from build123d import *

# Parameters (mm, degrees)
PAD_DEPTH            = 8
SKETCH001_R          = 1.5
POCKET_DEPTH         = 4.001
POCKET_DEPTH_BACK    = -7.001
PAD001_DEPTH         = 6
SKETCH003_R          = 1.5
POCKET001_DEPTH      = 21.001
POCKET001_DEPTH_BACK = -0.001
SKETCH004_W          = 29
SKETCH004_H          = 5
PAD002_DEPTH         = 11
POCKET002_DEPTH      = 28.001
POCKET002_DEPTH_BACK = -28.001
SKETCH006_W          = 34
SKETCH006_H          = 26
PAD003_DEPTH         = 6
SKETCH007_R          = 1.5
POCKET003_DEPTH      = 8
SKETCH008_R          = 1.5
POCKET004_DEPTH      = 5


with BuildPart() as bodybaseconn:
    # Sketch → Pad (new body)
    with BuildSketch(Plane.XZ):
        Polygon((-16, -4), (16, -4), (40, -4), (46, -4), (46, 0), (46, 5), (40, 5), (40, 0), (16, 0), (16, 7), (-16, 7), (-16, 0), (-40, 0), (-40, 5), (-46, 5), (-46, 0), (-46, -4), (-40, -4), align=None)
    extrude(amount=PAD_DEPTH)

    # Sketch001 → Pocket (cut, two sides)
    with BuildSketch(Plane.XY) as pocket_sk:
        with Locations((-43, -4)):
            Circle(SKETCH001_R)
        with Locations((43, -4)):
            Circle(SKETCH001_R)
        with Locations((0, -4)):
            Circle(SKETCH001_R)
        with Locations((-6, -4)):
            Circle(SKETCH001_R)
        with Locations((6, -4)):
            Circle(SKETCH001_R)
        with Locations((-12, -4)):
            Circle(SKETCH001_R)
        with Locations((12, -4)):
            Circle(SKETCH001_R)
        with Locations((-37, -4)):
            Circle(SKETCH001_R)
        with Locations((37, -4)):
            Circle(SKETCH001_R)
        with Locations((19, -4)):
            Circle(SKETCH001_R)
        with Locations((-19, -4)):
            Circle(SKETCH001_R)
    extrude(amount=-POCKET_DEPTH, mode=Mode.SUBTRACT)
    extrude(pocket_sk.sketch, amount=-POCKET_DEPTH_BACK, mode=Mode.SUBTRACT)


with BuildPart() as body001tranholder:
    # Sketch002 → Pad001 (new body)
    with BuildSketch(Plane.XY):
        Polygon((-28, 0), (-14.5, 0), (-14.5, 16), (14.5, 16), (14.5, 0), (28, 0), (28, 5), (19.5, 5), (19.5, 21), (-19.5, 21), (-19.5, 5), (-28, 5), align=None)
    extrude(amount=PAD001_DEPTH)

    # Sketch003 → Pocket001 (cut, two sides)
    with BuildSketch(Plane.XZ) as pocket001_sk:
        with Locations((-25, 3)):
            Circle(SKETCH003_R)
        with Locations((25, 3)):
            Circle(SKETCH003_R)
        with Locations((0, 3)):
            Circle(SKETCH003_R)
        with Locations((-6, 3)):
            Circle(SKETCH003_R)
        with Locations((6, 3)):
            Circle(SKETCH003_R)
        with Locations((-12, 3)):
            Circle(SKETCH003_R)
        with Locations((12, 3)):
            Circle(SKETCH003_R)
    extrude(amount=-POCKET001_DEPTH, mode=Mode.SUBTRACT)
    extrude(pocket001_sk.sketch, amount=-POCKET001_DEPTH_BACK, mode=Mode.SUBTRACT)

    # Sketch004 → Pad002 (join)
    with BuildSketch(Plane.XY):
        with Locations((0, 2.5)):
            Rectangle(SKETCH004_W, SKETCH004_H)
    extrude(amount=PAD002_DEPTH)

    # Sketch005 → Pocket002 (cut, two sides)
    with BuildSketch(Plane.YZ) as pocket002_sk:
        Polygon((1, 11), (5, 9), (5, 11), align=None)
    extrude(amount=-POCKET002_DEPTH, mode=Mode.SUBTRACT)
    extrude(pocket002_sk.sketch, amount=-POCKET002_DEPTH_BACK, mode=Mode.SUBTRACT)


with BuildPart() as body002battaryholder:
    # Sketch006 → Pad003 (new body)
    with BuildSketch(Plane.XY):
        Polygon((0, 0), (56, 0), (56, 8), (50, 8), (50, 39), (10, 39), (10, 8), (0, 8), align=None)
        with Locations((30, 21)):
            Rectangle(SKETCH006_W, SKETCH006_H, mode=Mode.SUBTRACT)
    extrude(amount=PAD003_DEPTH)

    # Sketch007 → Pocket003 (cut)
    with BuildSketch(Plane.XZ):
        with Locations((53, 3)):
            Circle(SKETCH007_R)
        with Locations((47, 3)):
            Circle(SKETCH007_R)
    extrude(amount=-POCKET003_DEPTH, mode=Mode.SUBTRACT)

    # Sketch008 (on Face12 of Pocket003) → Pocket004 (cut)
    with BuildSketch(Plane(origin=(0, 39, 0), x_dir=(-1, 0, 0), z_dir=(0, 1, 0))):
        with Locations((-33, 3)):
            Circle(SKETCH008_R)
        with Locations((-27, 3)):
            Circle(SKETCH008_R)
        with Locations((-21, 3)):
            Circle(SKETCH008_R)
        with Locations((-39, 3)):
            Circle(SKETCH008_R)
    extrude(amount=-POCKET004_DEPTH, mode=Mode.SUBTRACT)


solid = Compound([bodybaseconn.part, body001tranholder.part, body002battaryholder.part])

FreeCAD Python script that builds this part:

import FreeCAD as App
import Part
import Sketcher
Q = App.Units.Quantity


def add_polygon(sketch, points):
    """Adds a closed chain of lines whose ends are joined by coincident constraints."""
    first, n = sketch.GeometryCount, len(points)
    for a, b in zip(points, points[1:] + points[:1]):
        sketch.addGeometry(Part.LineSegment(App.Vector(*a, 0), App.Vector(*b, 0)), False)
    for i in range(n):
        sketch.addConstraint(Sketcher.Constraint("Coincident", first + i, 2, first + (i + 1) % n, 1))

doc = App.newDocument("Part")
params = doc.addObject("Spreadsheet::Sheet", "Params")
for row, (alias, value) in enumerate([
    ("sketch1_width", "6 mm"),
    ("sketch1_width2", "24 mm"),
    ("sketch1_width3", "32 mm"),
    ("sketch1_height", "9 mm"),
    ("sketch1_height2", "5 mm"),
    ("pad1_length", "8 mm"),
    ("sketch2_diameter", "3 mm"),
    ("sketch3_width", "29 mm"),
    ("sketch3_width2", "39 mm"),
    ("sketch3_height", "16 mm"),
    ("sketch3_height2", "5 mm"),
    ("sketch3_width3", "13.5 mm"),
    ("pad2_length", "6 mm"),
    ("sketch4_diameter", "3 mm"),
    ("sketch5_width", "29 mm"),
    ("sketch5_height", "5 mm"),
    ("pad3_length", "11 mm"),
    ("sketch6_width", "4 mm"),
    ("sketch6_height", "2 mm"),
    ("sketch7_width", "56 mm"),
    ("sketch7_width2", "6 mm"),
    ("sketch7_width3", "40 mm"),
    ("sketch7_width4", "34 mm"),
    ("sketch7_height", "8 mm"),
    ("pad4_length", "6 mm"),
    ("sketch8_diameter", "3 mm"),
    ("pocket4_length", "8 mm"),
    ("sketch9_diameter", "3 mm"),
    ("pocket5_length", "5 mm"),
], start=1):
    params.set(f"A{row}", alias)
    params.set(f"B{row}", "=" + value)
    params.setAlias(f"B{row}", alias)

body = doc.addObject("PartDesign::Body", "Body")

# Sketch on XZ plane
sketch1 = body.newObject("Sketcher::SketchObject", "Sketch")
sketch1.AttachmentSupport = (doc.getObject("XZ_Plane"), [""])
sketch1.MapMode = "FlatFace"
add_polygon(sketch1, [(46, -4), (46, 5), (40, 5), (40, 0), (16, 0), (16, 7), (-16, 7), (-16, 0), (-40, 0), (-40, 5), (-46, 5), (-46, -4)])  # lines 0-11
sketch1.addConstraint(Sketcher.Constraint("Vertical", 0))
sketch1.addConstraint(Sketcher.Constraint("Horizontal", 1))
sketch1.addConstraint(Sketcher.Constraint("Vertical", 2))
sketch1.addConstraint(Sketcher.Constraint("Horizontal", 3))
sketch1.addConstraint(Sketcher.Constraint("Vertical", 4))
sketch1.addConstraint(Sketcher.Constraint("Horizontal", 5))
sketch1.addConstraint(Sketcher.Constraint("Vertical", 6))
sketch1.addConstraint(Sketcher.Constraint("Horizontal", 7))
sketch1.addConstraint(Sketcher.Constraint("Vertical", 8))
sketch1.addConstraint(Sketcher.Constraint("Horizontal", 9))
sketch1.addConstraint(Sketcher.Constraint("Vertical", 10))
sketch1.addConstraint(Sketcher.Constraint("Horizontal", 11))
sketch1.addConstraint(Sketcher.Constraint("Symmetric", 3, 2, 6, 2, -1, 1))
sketch1.addConstraint(Sketcher.Constraint("Symmetric", 2, 2, 7, 2, -2))
sketch1.addConstraint(Sketcher.Constraint("Symmetric", 0, 2, 9, 2, -2))
sketch1.addConstraint(Sketcher.Constraint("DistanceX", 1, 2, 1, 1, Q("6 mm")))
sketch1.addConstraint(Sketcher.Constraint("DistanceX", 3, 2, 3, 1, Q("24 mm")))
sketch1.addConstraint(Sketcher.Constraint("DistanceX", 5, 2, 5, 1, Q("32 mm")))
sketch1.addConstraint(Sketcher.Constraint("DistanceY", 0, 1, 0, 2, Q("9 mm")))
sketch1.addConstraint(Sketcher.Constraint("DistanceY", 2, 2, 2, 1, Q("5 mm")))
sketch1.addConstraint(Sketcher.Constraint("DistanceY", 4, 1, 4, 2, Q("7 mm")))
sketch1.setExpression("Constraints[27]", "Params.sketch1_width")
sketch1.setExpression("Constraints[28]", "Params.sketch1_width2")
sketch1.setExpression("Constraints[29]", "Params.sketch1_width3")
sketch1.setExpression("Constraints[30]", "Params.sketch1_height")
sketch1.setExpression("Constraints[31]", "Params.sketch1_height2")
pad1 = body.newObject("PartDesign::Pad", "Pad")
pad1.Profile = sketch1
pad1.setExpression("Length", "Params.pad1_length")

# Sketch on XY plane
sketch2 = body.newObject("Sketcher::SketchObject", "Sketch001")
sketch2.AttachmentSupport = (doc.getObject("XY_Plane"), [""])
sketch2.MapMode = "FlatFace"
sketch2.addGeometry(Part.Circle(App.Vector(-43, -4, 0), App.Vector(0, 0, 1), 1.5), False)
sketch2.addGeometry(Part.Circle(App.Vector(43, -4, 0), App.Vector(0, 0, 1), 1.5), False)
sketch2.addGeometry(Part.Circle(App.Vector(0, -4, 0), App.Vector(0, 0, 1), 1.5), False)
sketch2.addGeometry(Part.Circle(App.Vector(-6, -4, 0), App.Vector(0, 0, 1), 1.5), False)
sketch2.addGeometry(Part.Circle(App.Vector(6, -4, 0), App.Vector(0, 0, 1), 1.5), False)
sketch2.addGeometry(Part.Circle(App.Vector(-12, -4, 0), App.Vector(0, 0, 1), 1.5), False)
sketch2.addGeometry(Part.Circle(App.Vector(12, -4, 0), App.Vector(0, 0, 1), 1.5), False)
sketch2.addGeometry(Part.Circle(App.Vector(-37, -4, 0), App.Vector(0, 0, 1), 1.5), False)
sketch2.addGeometry(Part.Circle(App.Vector(37, -4, 0), App.Vector(0, 0, 1), 1.5), False)
sketch2.addGeometry(Part.Circle(App.Vector(19, -4, 0), App.Vector(0, 0, 1), 1.5), False)
sketch2.addGeometry(Part.Circle(App.Vector(-19, -4, 0), App.Vector(0, 0, 1), 1.5), False)
sketch2.addConstraint(Sketcher.Constraint("Equal", 0, 1))
sketch2.addConstraint(Sketcher.Constraint("Equal", 1, 2))
sketch2.addConstraint(Sketcher.Constraint("Equal", 2, 3))
sketch2.addConstraint(Sketcher.Constraint("Equal", 3, 4))
sketch2.addConstraint(Sketcher.Constraint("Equal", 4, 5))
sketch2.addConstraint(Sketcher.Constraint("Equal", 5, 6))
sketch2.addConstraint(Sketcher.Constraint("Equal", 6, 7))
sketch2.addConstraint(Sketcher.Constraint("Equal", 7, 8))
sketch2.addConstraint(Sketcher.Constraint("Equal", 8, 9))
sketch2.addConstraint(Sketcher.Constraint("Equal", 9, 10))
sketch2.addConstraint(Sketcher.Constraint("Symmetric", 0, 3, 1, 3, -2))
sketch2.addConstraint(Sketcher.Constraint("Symmetric", 3, 3, 4, 3, -2))
sketch2.addConstraint(Sketcher.Constraint("Symmetric", 5, 3, 6, 3, -2))
sketch2.addConstraint(Sketcher.Constraint("Symmetric", 7, 3, 8, 3, -2))
sketch2.addConstraint(Sketcher.Constraint("Symmetric", 9, 3, 10, 3, -2))
sketch2.addConstraint(Sketcher.Constraint("PointOnObject", 2, 3, -2))
sketch2.addConstraint(Sketcher.Constraint("Horizontal", 1, 3, 2, 3))
sketch2.addConstraint(Sketcher.Constraint("Horizontal", 2, 3, 3, 3))
sketch2.addConstraint(Sketcher.Constraint("Horizontal", 4, 3, 5, 3))
sketch2.addConstraint(Sketcher.Constraint("Horizontal", 6, 3, 7, 3))
sketch2.addConstraint(Sketcher.Constraint("Horizontal", 8, 3, 9, 3))
sketch2.addConstraint(Sketcher.Constraint("Diameter", 0, Q("3 mm")))
sketch2.addConstraint(Sketcher.Constraint("DistanceX", 0, 3, -1, 1, Q("43 mm")))
sketch2.addConstraint(Sketcher.Constraint("DistanceY", 0, 3, -1, 1, Q("4 mm")))
sketch2.addConstraint(Sketcher.Constraint("DistanceX", 3, 3, -1, 1, Q("6 mm")))
sketch2.addConstraint(Sketcher.Constraint("DistanceX", 5, 3, -1, 1, Q("12 mm")))
sketch2.addConstraint(Sketcher.Constraint("DistanceX", 7, 3, -1, 1, Q("37 mm")))
sketch2.addConstraint(Sketcher.Constraint("DistanceX", -1, 1, 9, 3, Q("19 mm")))
sketch2.setExpression("Constraints[21]", "Params.sketch2_diameter")
pocket1 = body.newObject("PartDesign::Pocket", "Pocket")
pocket1.Profile = sketch2
pocket1.Type = "ThroughAll"
pocket1.Midplane = True
body2 = doc.addObject("PartDesign::Body", "Body001")

# Sketch on XY plane
sketch3 = body2.newObject("Sketcher::SketchObject", "Sketch002")
sketch3.AttachmentSupport = (doc.getObject("XY_Plane001"), [""])
sketch3.MapMode = "FlatFace"
add_polygon(sketch3, [(-28, 0), (-14, 0), (-14, 16), (14, 16), (14, 0), (28, 0), (28, 5), (20, 5), (20, 21), (-20, 21), (-20, 5), (-28, 5)])  # lines 0-11
sketch3.addConstraint(Sketcher.Constraint("Horizontal", 0))
sketch3.addConstraint(Sketcher.Constraint("Vertical", 1))
sketch3.addConstraint(Sketcher.Constraint("Horizontal", 2))
sketch3.addConstraint(Sketcher.Constraint("Vertical", 3))
sketch3.addConstraint(Sketcher.Constraint("Horizontal", 4))
sketch3.addConstraint(Sketcher.Constraint("Vertical", 5))
sketch3.addConstraint(Sketcher.Constraint("Horizontal", 6))
sketch3.addConstraint(Sketcher.Constraint("Vertical", 7))
sketch3.addConstraint(Sketcher.Constraint("Horizontal", 8))
sketch3.addConstraint(Sketcher.Constraint("Vertical", 9))
sketch3.addConstraint(Sketcher.Constraint("Horizontal", 10))
sketch3.addConstraint(Sketcher.Constraint("Vertical", 11))
sketch3.addConstraint(Sketcher.Constraint("Symmetric", 0, 2, 3, 2, -1, 1))
sketch3.addConstraint(Sketcher.Constraint("Symmetric", 6, 2, 9, 2, -2))
sketch3.addConstraint(Sketcher.Constraint("Symmetric", 4, 2, 11, 2, -2))
sketch3.addConstraint(Sketcher.Constraint("Equal", 3, 7))
sketch3.addConstraint(Sketcher.Constraint("DistanceX", 2, 1, 2, 2, Q("29 mm")))
sketch3.addConstraint(Sketcher.Constraint("DistanceX", 8, 2, 8, 1, Q("39 mm")))
sketch3.addConstraint(Sketcher.Constraint("DistanceY", 1, 1, 1, 2, Q("16 mm")))
sketch3.addConstraint(Sketcher.Constraint("DistanceY", 5, 1, 5, 2, Q("5 mm")))
sketch3.addConstraint(Sketcher.Constraint("DistanceX", 0, 1, 0, 2, Q("13.5 mm")))
sketch3.setExpression("Constraints[28]", "Params.sketch3_width")
sketch3.setExpression("Constraints[29]", "Params.sketch3_width2")
sketch3.setExpression("Constraints[30]", "Params.sketch3_height")
sketch3.setExpression("Constraints[31]", "Params.sketch3_height2")
sketch3.setExpression("Constraints[32]", "Params.sketch3_width3")
pad2 = body2.newObject("PartDesign::Pad", "Pad001")
pad2.Profile = sketch3
pad2.setExpression("Length", "Params.pad2_length")

# Sketch on XZ plane
sketch4 = body2.newObject("Sketcher::SketchObject", "Sketch003")
sketch4.AttachmentSupport = (doc.getObject("XZ_Plane001"), [""])
sketch4.MapMode = "FlatFace"
sketch4.addGeometry(Part.Circle(App.Vector(-25, 3, 0), App.Vector(0, 0, 1), 1.5), False)
sketch4.addGeometry(Part.Circle(App.Vector(25, 3, 0), App.Vector(0, 0, 1), 1.5), False)
sketch4.addGeometry(Part.Circle(App.Vector(0, 3, 0), App.Vector(0, 0, 1), 1.5), False)
sketch4.addGeometry(Part.Circle(App.Vector(-6, 3, 0), App.Vector(0, 0, 1), 1.5), False)
sketch4.addGeometry(Part.Circle(App.Vector(6, 3, 0), App.Vector(0, 0, 1), 1.5), False)
sketch4.addGeometry(Part.Circle(App.Vector(-12, 3, 0), App.Vector(0, 0, 1), 1.5), False)
sketch4.addGeometry(Part.Circle(App.Vector(12, 3, 0), App.Vector(0, 0, 1), 1.5), False)
sketch4.addConstraint(Sketcher.Constraint("Equal", 0, 1))
sketch4.addConstraint(Sketcher.Constraint("Equal", 1, 2))
sketch4.addConstraint(Sketcher.Constraint("Equal", 2, 3))
sketch4.addConstraint(Sketcher.Constraint("Equal", 3, 4))
sketch4.addConstraint(Sketcher.Constraint("Equal", 4, 5))
sketch4.addConstraint(Sketcher.Constraint("Equal", 5, 6))
sketch4.addConstraint(Sketcher.Constraint("Symmetric", 0, 3, 1, 3, -2))
sketch4.addConstraint(Sketcher.Constraint("Symmetric", 3, 3, 4, 3, -2))
sketch4.addConstraint(Sketcher.Constraint("Symmetric", 5, 3, 6, 3, -2))
sketch4.addConstraint(Sketcher.Constraint("PointOnObject", 2, 3, -2))
sketch4.addConstraint(Sketcher.Constraint("Horizontal", 1, 3, 2, 3))
sketch4.addConstraint(Sketcher.Constraint("Horizontal", 2, 3, 3, 3))
sketch4.addConstraint(Sketcher.Constraint("Horizontal", 4, 3, 5, 3))
sketch4.addConstraint(Sketcher.Constraint("Diameter", 0, Q("3 mm")))
sketch4.addConstraint(Sketcher.Constraint("DistanceX", 0, 3, -1, 1, Q("25 mm")))
sketch4.addConstraint(Sketcher.Constraint("DistanceY", -1, 1, 0, 3, Q("3 mm")))
sketch4.addConstraint(Sketcher.Constraint("DistanceX", 3, 3, -1, 1, Q("6 mm")))
sketch4.addConstraint(Sketcher.Constraint("DistanceX", 5, 3, -1, 1, Q("12 mm")))
sketch4.setExpression("Constraints[13]", "Params.sketch4_diameter")
pocket2 = body2.newObject("PartDesign::Pocket", "Pocket001")
pocket2.Profile = sketch4
pocket2.Type = "ThroughAll"
pocket2.Midplane = True

# Sketch on XY plane
sketch5 = body2.newObject("Sketcher::SketchObject", "Sketch004")
sketch5.AttachmentSupport = (doc.getObject("XY_Plane001"), [""])
sketch5.MapMode = "FlatFace"
add_polygon(sketch5, [(-14, 5), (-14, 0), (14, 0), (14, 5)])  # lines 0-3
sketch5.addConstraint(Sketcher.Constraint("Vertical", 0))
sketch5.addConstraint(Sketcher.Constraint("Horizontal", 1))
sketch5.addConstraint(Sketcher.Constraint("Vertical", 2))
sketch5.addConstraint(Sketcher.Constraint("Horizontal", 3))
sketch5.addConstraint(Sketcher.Constraint("Symmetric", 0, 2, 1, 2, -1, 1))
sketch5.addConstraint(Sketcher.Constraint("DistanceX", 1, 1, 1, 2, Q("29 mm")))
sketch5.addConstraint(Sketcher.Constraint("DistanceY", 0, 2, 0, 1, Q("5 mm")))
sketch5.setExpression("Constraints[9]", "Params.sketch5_width")
sketch5.setExpression("Constraints[10]", "Params.sketch5_height")
pad3 = body2.newObject("PartDesign::Pad", "Pad002")
pad3.Profile = sketch5
pad3.setExpression("Length", "Params.pad3_length")

# Sketch on YZ plane
sketch6 = body2.newObject("Sketcher::SketchObject", "Sketch005")
sketch6.AttachmentSupport = (doc.getObject("YZ_Plane001"), [""])
sketch6.MapMode = "FlatFace"
add_polygon(sketch6, [(1, 11), (5, 9), (5, 11)])  # lines 0-2
sketch6.addConstraint(Sketcher.Constraint("Vertical", 1))
sketch6.addConstraint(Sketcher.Constraint("Horizontal", 2))
sketch6.addConstraint(Sketcher.Constraint("DistanceX", 2, 2, 2, 1, Q("4 mm")))
sketch6.addConstraint(Sketcher.Constraint("DistanceY", 1, 1, 1, 2, Q("2 mm")))
sketch6.addConstraint(Sketcher.Constraint("DistanceX", -1, 1, 0, 2, Q("5 mm")))
sketch6.addConstraint(Sketcher.Constraint("DistanceY", -1, 1, 0, 2, Q("9 mm")))
sketch6.setExpression("Constraints[5]", "Params.sketch6_width")
sketch6.setExpression("Constraints[6]", "Params.sketch6_height")
pocket3 = body2.newObject("PartDesign::Pocket", "Pocket002")
pocket3.Profile = sketch6
pocket3.Type = "ThroughAll"
pocket3.Midplane = True
body3 = doc.addObject("PartDesign::Body", "Body002")

# Sketch on XY plane
sketch7 = body3.newObject("Sketcher::SketchObject", "Sketch006")
sketch7.AttachmentSupport = (doc.getObject("XY_Plane002"), [""])
sketch7.MapMode = "FlatFace"
add_polygon(sketch7, [(0, 0), (56, 0), (56, 8), (50, 8), (50, 39), (10, 39), (10, 8), (0, 8)])  # lines 0-7
add_polygon(sketch7, [(47, 8), (13, 8), (13, 34), (47, 34)])  # lines 8-11
sketch7.addConstraint(Sketcher.Constraint("Horizontal", 0))
sketch7.addConstraint(Sketcher.Constraint("Vertical", 1))
sketch7.addConstraint(Sketcher.Constraint("Horizontal", 2))
sketch7.addConstraint(Sketcher.Constraint("Vertical", 3))
sketch7.addConstraint(Sketcher.Constraint("Horizontal", 4))
sketch7.addConstraint(Sketcher.Constraint("Vertical", 5))
sketch7.addConstraint(Sketcher.Constraint("Horizontal", 6))
sketch7.addConstraint(Sketcher.Constraint("Vertical", 7))
sketch7.addConstraint(Sketcher.Constraint("Horizontal", 8))
sketch7.addConstraint(Sketcher.Constraint("Vertical", 9))
sketch7.addConstraint(Sketcher.Constraint("Horizontal", 10))
sketch7.addConstraint(Sketcher.Constraint("Vertical", 11))
sketch7.addConstraint(Sketcher.Constraint("Coincident", 7, 2, -1, 1))
sketch7.addConstraint(Sketcher.Constraint("Horizontal", 2, 2, 5, 2))
sketch7.addConstraint(Sketcher.Constraint("Horizontal", 6, 2, 8, 2))
sketch7.addConstraint(Sketcher.Constraint("DistanceX", 0, 1, 0, 2, Q("56 mm")))
sketch7.addConstraint(Sketcher.Constraint("DistanceX", 2, 2, 2, 1, Q("6 mm")))
sketch7.addConstraint(Sketcher.Constraint("DistanceX", 4, 2, 4, 1, Q("40 mm")))
sketch7.addConstraint(Sketcher.Constraint("DistanceX", 8, 2, 8, 1, Q("34 mm")))
sketch7.addConstraint(Sketcher.Constraint("DistanceY", 1, 1, 1, 2, Q("8 mm")))
sketch7.addConstraint(Sketcher.Constraint("DistanceY", 3, 1, 3, 2, Q("31 mm")))
sketch7.addConstraint(Sketcher.Constraint("DistanceY", 9, 1, 9, 2, Q("26 mm")))
sketch7.addConstraint(Sketcher.Constraint("DistanceX", -1, 1, 8, 2, Q("13 mm")))
sketch7.setExpression("Constraints[27]", "Params.sketch7_width")
sketch7.setExpression("Constraints[28]", "Params.sketch7_width2")
sketch7.setExpression("Constraints[29]", "Params.sketch7_width3")
sketch7.setExpression("Constraints[30]", "Params.sketch7_width4")
sketch7.setExpression("Constraints[31]", "Params.sketch7_height")
pad4 = body3.newObject("PartDesign::Pad", "Pad003")
pad4.Profile = sketch7
pad4.setExpression("Length", "Params.pad4_length")

# Sketch on XZ plane
sketch8 = body3.newObject("Sketcher::SketchObject", "Sketch007")
sketch8.AttachmentSupport = (doc.getObject("XZ_Plane002"), [""])
sketch8.MapMode = "FlatFace"
sketch8.addGeometry(Part.Circle(App.Vector(53, 3, 0), App.Vector(0, 0, 1), 1.5), False)
sketch8.addGeometry(Part.Circle(App.Vector(47, 3, 0), App.Vector(0, 0, 1), 1.5), False)
sketch8.addConstraint(Sketcher.Constraint("Equal", 0, 1))
sketch8.addConstraint(Sketcher.Constraint("Horizontal", 0, 3, 1, 3))
sketch8.addConstraint(Sketcher.Constraint("Diameter", 0, Q("3 mm")))
sketch8.addConstraint(Sketcher.Constraint("DistanceX", -1, 1, 0, 3, Q("53 mm")))
sketch8.addConstraint(Sketcher.Constraint("DistanceY", -1, 1, 0, 3, Q("3 mm")))
sketch8.addConstraint(Sketcher.Constraint("DistanceX", -1, 1, 1, 3, Q("47 mm")))
sketch8.setExpression("Constraints[2]", "Params.sketch8_diameter")
pocket4 = body3.newObject("PartDesign::Pocket", "Pocket003")
pocket4.Profile = sketch8
pocket4.setExpression("Length", "Params.pocket4_length")

# Sketch on XZ plane
sketch9 = body3.newObject("Sketcher::SketchObject", "Sketch008")
sketch9.AttachmentSupport = (doc.getObject("XZ_Plane002"), [""])
sketch9.MapMode = "FlatFace"
sketch9.AttachmentOffset = App.Placement(App.Vector(0, 0, -39), App.Rotation())
sketch9.addGeometry(Part.Circle(App.Vector(33, 3, 0), App.Vector(0, 0, 1), 1.5), False)
sketch9.addGeometry(Part.Circle(App.Vector(27, 3, 0), App.Vector(0, 0, 1), 1.5), False)
sketch9.addGeometry(Part.Circle(App.Vector(21, 3, 0), App.Vector(0, 0, 1), 1.5), False)
sketch9.addGeometry(Part.Circle(App.Vector(39, 3, 0), App.Vector(0, 0, 1), 1.5), False)
sketch9.addConstraint(Sketcher.Constraint("Equal", 0, 1))
sketch9.addConstraint(Sketcher.Constraint("Equal", 1, 2))
sketch9.addConstraint(Sketcher.Constraint("Equal", 2, 3))
sketch9.addConstraint(Sketcher.Constraint("Horizontal", 0, 3, 1, 3))
sketch9.addConstraint(Sketcher.Constraint("Horizontal", 1, 3, 2, 3))
sketch9.addConstraint(Sketcher.Constraint("Horizontal", 2, 3, 3, 3))
sketch9.addConstraint(Sketcher.Constraint("Diameter", 0, Q("3 mm")))
sketch9.addConstraint(Sketcher.Constraint("DistanceX", -1, 1, 0, 3, Q("33 mm")))
sketch9.addConstraint(Sketcher.Constraint("DistanceY", -1, 1, 0, 3, Q("3 mm")))
sketch9.addConstraint(Sketcher.Constraint("DistanceX", -1, 1, 1, 3, Q("27 mm")))
sketch9.addConstraint(Sketcher.Constraint("DistanceX", -1, 1, 2, 3, Q("21 mm")))
sketch9.addConstraint(Sketcher.Constraint("DistanceX", -1, 1, 3, 3, Q("39 mm")))
sketch9.setExpression("Constraints[6]", "Params.sketch9_diameter")
pocket5 = body3.newObject("PartDesign::Pocket", "Pocket004")
pocket5.Profile = sketch9
pocket5.setExpression("Length", "Params.pocket5_length")
pocket5.Reversed = True

doc.recompute()
